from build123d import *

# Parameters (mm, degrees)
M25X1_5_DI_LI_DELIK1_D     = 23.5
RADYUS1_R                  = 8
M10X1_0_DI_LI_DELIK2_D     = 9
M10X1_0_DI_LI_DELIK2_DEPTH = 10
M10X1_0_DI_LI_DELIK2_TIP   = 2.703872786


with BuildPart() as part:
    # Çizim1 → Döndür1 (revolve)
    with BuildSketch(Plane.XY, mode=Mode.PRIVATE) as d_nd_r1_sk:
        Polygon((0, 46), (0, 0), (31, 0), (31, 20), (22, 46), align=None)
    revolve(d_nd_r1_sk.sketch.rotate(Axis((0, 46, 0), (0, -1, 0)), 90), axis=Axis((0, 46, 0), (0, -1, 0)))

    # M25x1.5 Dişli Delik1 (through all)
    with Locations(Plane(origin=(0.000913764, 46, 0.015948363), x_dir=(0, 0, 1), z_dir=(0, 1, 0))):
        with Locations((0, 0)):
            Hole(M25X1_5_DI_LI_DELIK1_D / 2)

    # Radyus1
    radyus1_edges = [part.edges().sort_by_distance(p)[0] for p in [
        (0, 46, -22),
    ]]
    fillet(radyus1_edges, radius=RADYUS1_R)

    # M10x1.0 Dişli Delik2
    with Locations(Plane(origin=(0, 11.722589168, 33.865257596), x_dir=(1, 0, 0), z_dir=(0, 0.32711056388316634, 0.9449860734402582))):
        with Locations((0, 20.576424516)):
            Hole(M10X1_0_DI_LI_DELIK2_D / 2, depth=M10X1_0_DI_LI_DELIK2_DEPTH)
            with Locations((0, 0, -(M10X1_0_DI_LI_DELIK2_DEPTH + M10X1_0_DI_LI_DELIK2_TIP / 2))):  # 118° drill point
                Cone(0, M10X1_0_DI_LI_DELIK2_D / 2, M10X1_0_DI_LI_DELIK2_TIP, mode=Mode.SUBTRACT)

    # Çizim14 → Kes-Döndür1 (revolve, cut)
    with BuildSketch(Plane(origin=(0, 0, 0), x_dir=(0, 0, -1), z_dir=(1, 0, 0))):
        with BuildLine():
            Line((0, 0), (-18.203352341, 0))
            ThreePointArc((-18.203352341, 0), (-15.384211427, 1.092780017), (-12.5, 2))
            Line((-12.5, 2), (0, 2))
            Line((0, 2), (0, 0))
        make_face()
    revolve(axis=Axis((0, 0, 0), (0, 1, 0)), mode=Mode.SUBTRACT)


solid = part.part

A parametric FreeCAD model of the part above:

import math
import FreeCAD as App
import Part
import Sketcher

V = App.Vector
Q = App.Units.Quantity


def edges_at(feature, points):
    """Names of the edges that pass closest to the given points."""
    edges = feature.Shape.Edges
    near = lambda p: min(range(len(edges)), key=lambda i: edges[i].distToShape(Part.Vertex(*p))[0])
    return sorted({f"Edge{near(p) + 1}" for p in points})

doc = App.newDocument("Part")
body = doc.addObject("PartDesign::Body", "Body")

sketch1 = doc.addObject("Sketcher::SketchObject", "Sketch")
body.addObject(sketch1)
sketch1.AttachmentSupport = (doc.XY_Plane, [""])
sketch1.MapMode = "FlatFace"
sketch1.addGeometry([
    Part.LineSegment(V(0, 46, 0), V(0, 0, 0)),
    Part.LineSegment(V(0, 0, 0), V(31, 0, 0)),
    Part.LineSegment(V(31, 0, 0), V(31, 20, 0)),
    Part.LineSegment(V(31, 20, 0), V(22, 46, 0)),
    Part.LineSegment(V(22, 46, 0), V(0, 46, 0)),
], False)
sketch1.addConstraint([
    Sketcher.Constraint("Coincident", 0, 2, 1, 1),
    Sketcher.Constraint("Coincident", 1, 2, 2, 1),
    Sketcher.Constraint("Coincident", 2, 2, 3, 1),
    Sketcher.Constraint("Coincident", 3, 2, 4, 1),
    Sketcher.Constraint("Coincident", 4, 2, 0, 1),
    Sketcher.Constraint("Vertical", 0),
    Sketcher.Constraint("Horizontal", 1),
    Sketcher.Constraint("Vertical", 2),
    Sketcher.Constraint("Horizontal", 4),
    Sketcher.Constraint("Coincident", 0, 2, -1, 1),
    Sketcher.Constraint("DistanceX", 1, 1, 1, 2, Q("31 mm")),
    Sketcher.Constraint("DistanceX", 4, 2, 4, 1, Q("22 mm")),
    Sketcher.Constraint("DistanceY", 0, 2, 0, 1, Q("46 mm")),
    Sketcher.Constraint("DistanceY", 2, 1, 2, 2, Q("20 mm")),
])
revolution = doc.addObject("PartDesign::Revolution", "Revolution")
body.addObject(revolution)
revolution.Profile = sketch1
revolution.ReferenceAxis = (sketch1, ["V_Axis"])
revolution.Angle = 360

sketch2 = doc.addObject("Sketcher::SketchObject", "Sketch001")
body.addObject(sketch2)
sketch2.AttachmentSupport = (doc.XZ_Plane, [""])
sketch2.MapMode = "FlatFace"
sketch2.AttachmentOffset = App.Placement(V(0, 0, -46), App.Rotation())
sketch2.addGeometry(Part.Circle(V(0.000914, 0.015948, 0), V(0, 0, 1), 11.75), False)
sketch2.addConstraint([
    Sketcher.Constraint("Diameter", 0, Q("23.5 mm")),
    Sketcher.Constraint("DistanceY", -1, 1, 0, 3, Q("0.015948 mm")),
    Sketcher.Constraint("DistanceX", -1, 1, 0, 3, Q("0.000914 mm")),
])
doc.recompute()
hole = doc.addObject("PartDesign::Hole", "Hole")
body.addObject(hole)
hole.Profile = sketch2
hole.ThreadType = "None"
hole.Diameter = 23.5
hole.DepthType = "ThroughAll"
hole.Reversed = True
doc.recompute()

fillet = doc.addObject("PartDesign::Fillet", "Fillet")
body.addObject(fillet)
fillet.Base = (hole, edges_at(hole, [(0, 46, -22)]))
fillet.Radius = 8

sketch3 = doc.addObject("Sketcher::SketchObject", "Sketch002")
body.addObject(sketch3)
sketch3.Placement = App.Placement(V(0, 11.722589, 33.865258), App.Rotation(V(1, 0, 0), V(0, 0.944986073, -0.327110564), V(0, 0.327110564, 0.944986073), "ZXY"))
sketch3.addGeometry(Part.Circle(V(0, 20.576425, 0), V(0, 0, 1), 4.5), False)
sketch3.addConstraint([
    Sketcher.Constraint("PointOnObject", 0, 3, -2),
    Sketcher.Constraint("Diameter", 0, Q("9 mm")),
    Sketcher.Constraint("DistanceY", -1, 1, 0, 3, Q("20.576425 mm")),
])
doc.recompute()
hole2 = doc.addObject("PartDesign::Hole", "Hole001")
body.addObject(hole2)
hole2.Profile = sketch3
hole2.ThreadType = "None"
hole2.Diameter = 9
hole2.DepthType = "Dimension"
hole2.Depth = 10
hole2.DrillPoint = "Angled"
hole2.DrillPointAngle = 118

sketch4 = doc.addObject("Sketcher::SketchObject", "Sketch003")
body.addObject(sketch4)
sketch4.AttachmentSupport = (doc.YZ_Plane, [""])
sketch4.MapMode = "FlatFace"
sketch4.addGeometry([
    Part.LineSegment(V(0, 18.203352, 0), V(0, 0, 0)),
    Part.LineSegment(V(0, 0, 0), V(2, 0, 0)),
    Part.LineSegment(V(2, 0, 0), V(2, 12.5, 0)),
    Part.ArcOfCircle(Part.Circle(V(-42.778009, 0, 0), V(0, 0, 1), 46.49), math.radians(15.597335), math.radians(23.051238)),
], False)
sketch4.addConstraint([
    Sketcher.Constraint("Coincident", 0, 2, 1, 1),
    Sketcher.Constraint("Coincident", 1, 2, 2, 1),
    Sketcher.Constraint("Coincident", 2, 2, 3, 1),
    Sketcher.Constraint("Coincident", 3, 2, 0, 1),
    Sketcher.Constraint("Vertical", 0),
    Sketcher.Constraint("Horizontal", 1),
    Sketcher.Constraint("Vertical", 2),
    Sketcher.Constraint("Coincident", 0, 2, -1, 1),
    Sketcher.Constraint("PointOnObject", 3, 3, -1),
    Sketcher.Constraint("DistanceX", 1, 1, 1, 2, Q("2 mm")),
    Sketcher.Constraint("Radius", 3, Q("46.49 mm")),
    Sketcher.Constraint("DistanceY", 2, 1, 2, 2, Q("12.5 mm")),
])
groove = doc.addObject("PartDesign::Groove", "Groove")
body.addObject(groove)
groove.Profile = sketch4
groove.ReferenceAxis = (sketch4, ["H_Axis"])
groove.Angle = 360

doc.recompute()
